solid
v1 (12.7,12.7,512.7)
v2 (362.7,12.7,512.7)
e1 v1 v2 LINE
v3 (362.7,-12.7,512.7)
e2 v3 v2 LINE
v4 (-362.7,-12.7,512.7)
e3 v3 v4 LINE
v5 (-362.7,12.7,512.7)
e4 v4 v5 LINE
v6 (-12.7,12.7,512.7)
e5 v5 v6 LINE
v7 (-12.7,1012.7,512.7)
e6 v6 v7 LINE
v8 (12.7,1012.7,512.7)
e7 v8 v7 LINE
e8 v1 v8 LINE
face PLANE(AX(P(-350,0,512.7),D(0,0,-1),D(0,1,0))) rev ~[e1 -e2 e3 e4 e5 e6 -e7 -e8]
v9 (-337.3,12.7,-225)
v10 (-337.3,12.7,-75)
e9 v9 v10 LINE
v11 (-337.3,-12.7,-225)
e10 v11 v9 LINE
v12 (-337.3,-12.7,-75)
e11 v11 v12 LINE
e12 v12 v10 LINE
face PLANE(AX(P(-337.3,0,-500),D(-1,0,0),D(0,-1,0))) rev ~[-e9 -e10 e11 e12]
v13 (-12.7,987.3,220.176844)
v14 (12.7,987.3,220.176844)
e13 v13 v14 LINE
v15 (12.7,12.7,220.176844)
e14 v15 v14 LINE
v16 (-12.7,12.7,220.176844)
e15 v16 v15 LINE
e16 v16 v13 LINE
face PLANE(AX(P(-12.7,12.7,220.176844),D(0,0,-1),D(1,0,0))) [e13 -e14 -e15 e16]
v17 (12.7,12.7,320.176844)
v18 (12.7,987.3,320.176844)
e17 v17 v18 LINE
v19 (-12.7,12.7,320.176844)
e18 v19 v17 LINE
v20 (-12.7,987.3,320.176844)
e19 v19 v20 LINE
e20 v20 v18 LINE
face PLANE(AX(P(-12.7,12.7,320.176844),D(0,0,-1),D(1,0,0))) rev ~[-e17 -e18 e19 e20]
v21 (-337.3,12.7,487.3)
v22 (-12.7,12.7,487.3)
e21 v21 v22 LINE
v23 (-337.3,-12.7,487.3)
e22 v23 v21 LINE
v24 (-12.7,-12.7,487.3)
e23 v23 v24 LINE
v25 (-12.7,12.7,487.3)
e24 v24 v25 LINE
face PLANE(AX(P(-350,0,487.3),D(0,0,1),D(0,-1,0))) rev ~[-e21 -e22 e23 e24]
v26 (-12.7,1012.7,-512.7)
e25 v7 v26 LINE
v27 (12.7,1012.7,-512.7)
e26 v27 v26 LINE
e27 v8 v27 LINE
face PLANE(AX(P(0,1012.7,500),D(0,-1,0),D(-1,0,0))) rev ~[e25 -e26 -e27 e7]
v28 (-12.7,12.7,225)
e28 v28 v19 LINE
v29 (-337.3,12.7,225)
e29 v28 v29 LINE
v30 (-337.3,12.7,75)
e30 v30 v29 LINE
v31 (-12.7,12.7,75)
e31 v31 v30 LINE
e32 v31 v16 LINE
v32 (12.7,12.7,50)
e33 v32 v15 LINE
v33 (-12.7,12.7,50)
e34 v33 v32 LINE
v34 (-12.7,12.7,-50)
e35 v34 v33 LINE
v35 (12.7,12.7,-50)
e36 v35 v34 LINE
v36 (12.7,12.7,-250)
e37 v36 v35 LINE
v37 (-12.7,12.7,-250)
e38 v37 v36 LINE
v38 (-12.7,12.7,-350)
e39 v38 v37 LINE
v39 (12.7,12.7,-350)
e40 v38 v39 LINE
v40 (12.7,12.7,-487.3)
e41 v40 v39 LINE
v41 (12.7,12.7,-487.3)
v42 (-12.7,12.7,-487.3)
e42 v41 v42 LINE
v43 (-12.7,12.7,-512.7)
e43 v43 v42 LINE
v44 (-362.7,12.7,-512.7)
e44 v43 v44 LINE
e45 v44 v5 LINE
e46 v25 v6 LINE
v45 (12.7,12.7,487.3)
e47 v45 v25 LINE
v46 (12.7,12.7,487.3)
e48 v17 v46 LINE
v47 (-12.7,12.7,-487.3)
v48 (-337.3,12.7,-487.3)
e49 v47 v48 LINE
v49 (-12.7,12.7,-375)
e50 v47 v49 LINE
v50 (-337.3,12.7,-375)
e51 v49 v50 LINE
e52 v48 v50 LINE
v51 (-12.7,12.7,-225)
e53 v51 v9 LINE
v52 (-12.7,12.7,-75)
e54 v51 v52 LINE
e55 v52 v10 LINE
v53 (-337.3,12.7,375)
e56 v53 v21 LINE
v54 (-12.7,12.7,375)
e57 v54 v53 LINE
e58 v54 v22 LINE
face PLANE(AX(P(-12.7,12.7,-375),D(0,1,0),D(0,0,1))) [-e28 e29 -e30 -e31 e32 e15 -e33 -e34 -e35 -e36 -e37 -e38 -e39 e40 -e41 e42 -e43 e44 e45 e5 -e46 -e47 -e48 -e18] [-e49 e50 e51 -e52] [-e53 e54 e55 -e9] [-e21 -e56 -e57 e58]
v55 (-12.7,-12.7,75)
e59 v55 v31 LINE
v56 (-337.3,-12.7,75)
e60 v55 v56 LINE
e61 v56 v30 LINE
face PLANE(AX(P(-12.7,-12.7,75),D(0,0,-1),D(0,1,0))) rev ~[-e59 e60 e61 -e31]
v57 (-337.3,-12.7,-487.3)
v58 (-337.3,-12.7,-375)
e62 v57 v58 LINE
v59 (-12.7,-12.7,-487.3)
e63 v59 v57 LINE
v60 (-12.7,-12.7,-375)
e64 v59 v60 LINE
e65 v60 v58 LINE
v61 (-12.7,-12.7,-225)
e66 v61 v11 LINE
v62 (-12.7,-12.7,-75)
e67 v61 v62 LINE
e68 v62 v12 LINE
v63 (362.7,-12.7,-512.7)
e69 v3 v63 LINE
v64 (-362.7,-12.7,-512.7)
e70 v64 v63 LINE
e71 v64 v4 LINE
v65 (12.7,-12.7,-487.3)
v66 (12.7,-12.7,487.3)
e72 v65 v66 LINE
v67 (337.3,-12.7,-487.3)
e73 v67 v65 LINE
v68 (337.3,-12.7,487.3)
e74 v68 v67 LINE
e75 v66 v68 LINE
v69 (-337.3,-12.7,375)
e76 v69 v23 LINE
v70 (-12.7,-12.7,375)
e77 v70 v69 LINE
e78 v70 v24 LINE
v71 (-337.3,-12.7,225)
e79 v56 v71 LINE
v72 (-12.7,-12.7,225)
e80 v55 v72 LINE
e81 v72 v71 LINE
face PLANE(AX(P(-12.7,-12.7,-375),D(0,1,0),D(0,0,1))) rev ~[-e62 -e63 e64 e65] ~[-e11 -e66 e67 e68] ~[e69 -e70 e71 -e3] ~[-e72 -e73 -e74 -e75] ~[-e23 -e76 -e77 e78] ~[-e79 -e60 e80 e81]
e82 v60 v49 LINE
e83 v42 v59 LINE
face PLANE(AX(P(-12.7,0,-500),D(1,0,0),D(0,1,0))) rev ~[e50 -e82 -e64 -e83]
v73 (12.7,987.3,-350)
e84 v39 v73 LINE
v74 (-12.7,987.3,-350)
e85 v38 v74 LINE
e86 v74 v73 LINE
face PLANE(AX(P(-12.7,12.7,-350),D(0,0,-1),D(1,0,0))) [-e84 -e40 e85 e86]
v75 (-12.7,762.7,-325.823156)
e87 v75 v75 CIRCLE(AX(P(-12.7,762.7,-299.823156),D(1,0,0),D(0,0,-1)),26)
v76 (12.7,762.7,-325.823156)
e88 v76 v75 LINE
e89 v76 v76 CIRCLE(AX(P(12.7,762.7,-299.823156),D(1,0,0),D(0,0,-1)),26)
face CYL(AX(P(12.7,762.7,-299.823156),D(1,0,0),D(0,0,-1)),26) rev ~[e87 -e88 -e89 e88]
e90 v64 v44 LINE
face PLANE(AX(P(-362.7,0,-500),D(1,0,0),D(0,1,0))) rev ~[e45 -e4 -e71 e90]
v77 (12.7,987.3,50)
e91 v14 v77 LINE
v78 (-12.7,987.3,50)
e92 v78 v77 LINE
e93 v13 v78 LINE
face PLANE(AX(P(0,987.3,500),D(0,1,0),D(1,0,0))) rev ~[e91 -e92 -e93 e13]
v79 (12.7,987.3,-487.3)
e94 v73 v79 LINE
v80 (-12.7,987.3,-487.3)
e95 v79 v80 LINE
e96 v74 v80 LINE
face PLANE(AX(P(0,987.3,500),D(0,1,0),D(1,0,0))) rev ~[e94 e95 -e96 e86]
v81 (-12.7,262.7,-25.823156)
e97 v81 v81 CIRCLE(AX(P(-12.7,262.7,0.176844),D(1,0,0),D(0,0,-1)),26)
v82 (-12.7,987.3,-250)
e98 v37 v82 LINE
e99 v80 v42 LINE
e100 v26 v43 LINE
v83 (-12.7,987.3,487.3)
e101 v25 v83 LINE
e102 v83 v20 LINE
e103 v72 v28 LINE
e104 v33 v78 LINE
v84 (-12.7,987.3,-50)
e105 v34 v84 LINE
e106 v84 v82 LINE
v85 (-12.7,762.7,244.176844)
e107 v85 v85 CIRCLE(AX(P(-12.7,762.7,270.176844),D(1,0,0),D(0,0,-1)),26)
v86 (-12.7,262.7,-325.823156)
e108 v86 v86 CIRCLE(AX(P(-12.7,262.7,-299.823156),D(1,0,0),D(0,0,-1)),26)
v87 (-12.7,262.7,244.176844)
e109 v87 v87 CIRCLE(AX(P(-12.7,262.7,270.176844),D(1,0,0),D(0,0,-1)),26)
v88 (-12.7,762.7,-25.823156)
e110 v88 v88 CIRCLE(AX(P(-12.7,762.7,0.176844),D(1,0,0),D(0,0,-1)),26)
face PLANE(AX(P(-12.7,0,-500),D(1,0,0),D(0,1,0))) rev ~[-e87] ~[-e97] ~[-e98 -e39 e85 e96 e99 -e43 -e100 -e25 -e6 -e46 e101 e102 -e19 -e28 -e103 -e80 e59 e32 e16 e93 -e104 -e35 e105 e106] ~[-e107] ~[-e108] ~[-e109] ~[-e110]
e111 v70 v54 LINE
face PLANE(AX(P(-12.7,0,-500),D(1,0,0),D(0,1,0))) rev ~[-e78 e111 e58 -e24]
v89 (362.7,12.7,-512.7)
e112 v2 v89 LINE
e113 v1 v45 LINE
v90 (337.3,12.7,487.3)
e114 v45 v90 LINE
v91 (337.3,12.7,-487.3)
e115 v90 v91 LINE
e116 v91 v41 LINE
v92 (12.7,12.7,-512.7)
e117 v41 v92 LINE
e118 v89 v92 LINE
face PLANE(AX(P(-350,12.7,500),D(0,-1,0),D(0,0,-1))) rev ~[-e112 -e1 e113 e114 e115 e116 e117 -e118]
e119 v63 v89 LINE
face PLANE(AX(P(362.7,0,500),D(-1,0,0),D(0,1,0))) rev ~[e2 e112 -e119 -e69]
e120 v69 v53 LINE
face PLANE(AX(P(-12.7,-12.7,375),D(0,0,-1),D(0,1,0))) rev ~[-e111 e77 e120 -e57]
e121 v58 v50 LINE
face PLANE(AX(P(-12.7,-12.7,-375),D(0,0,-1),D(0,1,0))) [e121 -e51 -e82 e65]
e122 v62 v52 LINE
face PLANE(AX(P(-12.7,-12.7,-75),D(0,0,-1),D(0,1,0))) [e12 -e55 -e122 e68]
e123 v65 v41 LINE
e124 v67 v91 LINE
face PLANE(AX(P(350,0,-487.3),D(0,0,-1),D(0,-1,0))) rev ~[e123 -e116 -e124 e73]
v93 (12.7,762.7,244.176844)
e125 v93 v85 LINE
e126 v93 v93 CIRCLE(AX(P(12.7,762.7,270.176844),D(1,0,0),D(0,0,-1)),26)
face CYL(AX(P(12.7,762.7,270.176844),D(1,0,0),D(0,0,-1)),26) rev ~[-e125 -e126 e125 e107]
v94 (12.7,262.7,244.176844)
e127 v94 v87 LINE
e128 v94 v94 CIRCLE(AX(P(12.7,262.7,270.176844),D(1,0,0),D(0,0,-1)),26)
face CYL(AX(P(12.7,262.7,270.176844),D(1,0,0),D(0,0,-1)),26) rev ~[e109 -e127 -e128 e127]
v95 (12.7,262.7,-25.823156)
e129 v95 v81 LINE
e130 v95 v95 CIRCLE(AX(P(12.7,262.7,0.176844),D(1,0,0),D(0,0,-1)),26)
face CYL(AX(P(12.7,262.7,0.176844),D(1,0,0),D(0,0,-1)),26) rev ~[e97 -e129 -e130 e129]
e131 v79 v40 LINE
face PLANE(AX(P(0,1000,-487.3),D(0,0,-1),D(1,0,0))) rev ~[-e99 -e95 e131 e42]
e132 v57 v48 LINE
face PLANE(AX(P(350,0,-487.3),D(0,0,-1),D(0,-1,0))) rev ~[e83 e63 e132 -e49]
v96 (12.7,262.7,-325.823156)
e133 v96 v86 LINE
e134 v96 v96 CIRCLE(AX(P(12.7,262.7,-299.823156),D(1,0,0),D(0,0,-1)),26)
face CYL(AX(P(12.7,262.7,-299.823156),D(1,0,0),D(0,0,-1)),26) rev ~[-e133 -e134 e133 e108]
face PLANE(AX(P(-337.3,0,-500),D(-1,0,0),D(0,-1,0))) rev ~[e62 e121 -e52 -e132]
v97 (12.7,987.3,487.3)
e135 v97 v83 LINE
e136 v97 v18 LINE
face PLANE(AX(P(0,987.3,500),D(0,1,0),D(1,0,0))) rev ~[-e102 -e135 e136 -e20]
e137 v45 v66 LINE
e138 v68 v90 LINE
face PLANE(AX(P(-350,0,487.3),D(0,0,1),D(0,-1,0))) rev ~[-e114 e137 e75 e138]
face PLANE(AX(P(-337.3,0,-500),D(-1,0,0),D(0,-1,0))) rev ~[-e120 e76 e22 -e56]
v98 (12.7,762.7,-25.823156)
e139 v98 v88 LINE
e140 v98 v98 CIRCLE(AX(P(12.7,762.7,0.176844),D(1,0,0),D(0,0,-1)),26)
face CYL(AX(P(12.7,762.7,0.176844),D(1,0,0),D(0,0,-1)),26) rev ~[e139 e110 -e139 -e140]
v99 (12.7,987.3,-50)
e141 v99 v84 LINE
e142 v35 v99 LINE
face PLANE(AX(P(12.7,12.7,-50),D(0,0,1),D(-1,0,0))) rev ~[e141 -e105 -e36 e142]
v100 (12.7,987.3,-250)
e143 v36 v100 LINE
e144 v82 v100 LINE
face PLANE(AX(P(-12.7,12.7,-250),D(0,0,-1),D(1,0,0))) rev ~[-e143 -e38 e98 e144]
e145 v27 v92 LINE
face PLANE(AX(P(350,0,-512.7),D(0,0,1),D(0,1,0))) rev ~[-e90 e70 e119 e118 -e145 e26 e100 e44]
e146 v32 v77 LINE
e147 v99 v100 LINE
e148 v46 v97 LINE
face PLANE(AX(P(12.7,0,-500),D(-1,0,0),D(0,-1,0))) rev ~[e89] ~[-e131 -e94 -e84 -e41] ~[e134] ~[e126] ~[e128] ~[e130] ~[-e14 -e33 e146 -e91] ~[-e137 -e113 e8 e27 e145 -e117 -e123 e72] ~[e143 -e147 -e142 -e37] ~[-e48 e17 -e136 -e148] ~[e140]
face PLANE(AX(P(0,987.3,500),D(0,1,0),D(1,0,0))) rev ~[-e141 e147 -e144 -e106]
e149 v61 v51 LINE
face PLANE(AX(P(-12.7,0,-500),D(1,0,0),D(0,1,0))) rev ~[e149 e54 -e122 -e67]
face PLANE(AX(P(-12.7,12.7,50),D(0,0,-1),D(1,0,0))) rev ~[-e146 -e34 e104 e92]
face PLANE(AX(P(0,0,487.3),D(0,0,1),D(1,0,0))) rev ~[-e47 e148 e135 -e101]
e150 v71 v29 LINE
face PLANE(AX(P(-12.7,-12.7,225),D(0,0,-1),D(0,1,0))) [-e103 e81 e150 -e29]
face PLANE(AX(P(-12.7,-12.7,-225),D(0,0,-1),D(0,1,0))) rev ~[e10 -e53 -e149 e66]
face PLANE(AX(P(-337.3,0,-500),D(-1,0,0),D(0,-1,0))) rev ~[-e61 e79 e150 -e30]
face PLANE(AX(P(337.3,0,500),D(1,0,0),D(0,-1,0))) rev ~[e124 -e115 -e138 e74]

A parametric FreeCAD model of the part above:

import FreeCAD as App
import Part
import Sketcher


def add_polygon(sketch, points):
    """Adds a closed chain of lines whose ends are joined by coincident constraints."""
    first, n = sketch.GeometryCount, len(points)
    for a, b in zip(points, points[1:] + points[:1]):
        sketch.addGeometry(Part.LineSegment(App.Vector(*a, 0), App.Vector(*b, 0)), False)
    for i in range(n):
        sketch.addConstraint(Sketcher.Constraint("Coincident", first + i, 2, first + (i + 1) % n, 1))

doc = App.newDocument("Part")
params = doc.addObject("Spreadsheet::Sheet", "Params")
for row, (alias, value) in enumerate([
    ("sketch1_width", "25.4 mm"),
    ("sketch2_width", "700 mm"),
    ("sketch2_height", "1000 mm"),
    ("sketch3_width", "25.4 mm"),
    ("sketch4_width", "1000 mm"),
    ("sketch5_height", "100 mm"),
    ("sketch5_width", "25.4 mm"),
    ("pad1_length", "974.6 mm"),
    ("sketch6_height", "150 mm"),
    ("sketch6_width", "25.4 mm"),
    ("pad2_length", "324.6 mm"),
    ("sketch7_diameter", "52 mm"),
    ("pocket1_length", "1115 mm"),
], start=1):
    params.set(f"A{row}", alias)
    params.set(f"B{row}", "=" + value)
    params.setAlias(f"B{row}", alias)

body = doc.addObject("PartDesign::Body", "Body")

# Sketch on YZ plane
sketch1 = body.newObject("Sketcher::SketchObject", "Sketch")
sketch1.AttachmentSupport = (doc.getObject("YZ_Plane"), [""])
sketch1.MapMode = "FlatFace"
add_polygon(sketch1, [(12.7, -487.3), (-12.7, -487.3), (-12.7, -512.7), (12.7, -512.7)])  # lines 0-3
sketch1.addConstraint([
    Sketcher.Constraint("Horizontal", 0),
    Sketcher.Constraint("Vertical", 1),
    Sketcher.Constraint("Horizontal", 2),
    Sketcher.Constraint("Vertical", 3),
    Sketcher.Constraint("Equal", 2, 1),
    Sketcher.Constraint("DistanceX", 0, 2, 0, 1, 25.4),
    Sketcher.Constraint("DistanceX", 0, 2, -1, 1, 12.7),
    Sketcher.Constraint("DistanceY", 0, 2, -1, 1, 487.3),
])
sketch1.setExpression("Constraints[9]", "Params.sketch1_width")

# Sketch on XZ plane
sketch2 = body.newObject("Sketcher::SketchObject", "Sketch001")
sketch2.AttachmentSupport = (doc.getObject("XZ_Plane"), [""])
sketch2.MapMode = "FlatFace"
add_polygon(sketch2, [(-350, 500), (350, 500), (350, -500), (-350, -500)])  # lines 0-3
sketch2.addConstraint([
    Sketcher.Constraint("Horizontal", 0),
    Sketcher.Constraint("Vertical", 1),
    Sketcher.Constraint("Horizontal", 2),
    Sketcher.Constraint("Vertical", 3),
    Sketcher.Constraint("Symmetric", 0, 2, 2, 2, -1, 1),
    Sketcher.Constraint("DistanceX", 0, 1, 0, 2, 700.0),
    Sketcher.Constraint("DistanceY", 1, 2, 1, 1, 1000.0),
])
sketch2.setExpression("Constraints[9]", "Params.sketch2_width")
sketch2.setExpression("Constraints[10]", "Params.sketch2_height")
doc.recompute()

additivepipe = body.newObject("PartDesign::AdditivePipe", "AdditivePipe")
additivepipe.Profile = sketch1
additivepipe.Spine = (sketch2, ["Edge1", "Edge2", "Edge3", "Edge4"])
additivepipe.Transition = "Right corner"

# Sketch on XZ plane
sketch3 = body.newObject("Sketcher::SketchObject", "Sketch002")
sketch3.AttachmentSupport = (doc.getObject("XZ_Plane"), [""])
sketch3.MapMode = "FlatFace"
sketch3.AttachmentOffset = App.Placement(App.Vector(0, 0, -12.7), App.Rotation())
add_polygon(sketch3, [(-12.7, -512.7), (-12.7, -487.3), (12.7, -487.3), (12.7, -512.7)])  # lines 0-3
sketch3.addConstraint([
    Sketcher.Constraint("Vertical", 0),
    Sketcher.Constraint("Horizontal", 1),
    Sketcher.Constraint("Vertical", 2),
    Sketcher.Constraint("Horizontal", 3),
    Sketcher.Constraint("Equal", 3, 0),
    Sketcher.Constraint("DistanceX", 1, 1, 1, 2, 25.4),
    Sketcher.Constraint("DistanceX", 0, 2, -1, 1, 12.7),
    Sketcher.Constraint("DistanceY", 0, 2, -1, 1, 487.3),
])
sketch3.setExpression("Constraints[9]", "Params.sketch3_width")

# Sketch on YZ plane
sketch4 = body.newObject("Sketcher::SketchObject", "Sketch003")
sketch4.AttachmentSupport = (doc.getObject("YZ_Plane"), [""])
sketch4.MapMode = "FlatFace"
add_polygon(sketch4, [(0, 500), (1000, 500), (1000, -500), (0, -500)])  # lines 0-3
sketch4.addConstraint([
    Sketcher.Constraint("Horizontal", 0),
    Sketcher.Constraint("Vertical", 1),
    Sketcher.Constraint("Horizontal", 2),
    Sketcher.Constraint("Vertical", 3),
    Sketcher.Constraint("Symmetric", 2, 2, 3, 2, -1, 1),
    Sketcher.Constraint("Equal", 2, 1),
    Sketcher.Constraint("DistanceX", 0, 1, 0, 2, 1000.0),
])
sketch4.setExpression("Constraints[10]", "Params.sketch4_width")
doc.recompute()

additivepipe2 = body.newObject("PartDesign::AdditivePipe", "AdditivePipe001")
additivepipe2.Profile = sketch3
additivepipe2.Spine = (sketch4, ["Edge1", "Edge2", "Edge3", "Edge4"])
additivepipe2.Transition = "Right corner"

# Sketch on XZ plane
sketch5 = body.newObject("Sketcher::SketchObject", "Sketch004")
sketch5.AttachmentSupport = (doc.getObject("XZ_Plane"), [""])
sketch5.MapMode = "FlatFace"
sketch5.AttachmentOffset = App.Placement(App.Vector(0, 0, -12.7), App.Rotation())
add_polygon(sketch5, [(-12.7, 50), (12.7, 50), (12.7, -50), (-12.7, -50)])  # lines 0-3
add_polygon(sketch5, [(-12.7, 220.176844), (-12.7, 320.176844), (12.7, 320.176844), (12.7, 220.176844)])  # lines 4-7
add_polygon(sketch5, [(-12.7, -350), (-12.7, -250), (12.7, -250), (12.7, -350)])  # lines 8-11
sketch5.addConstraint([
    Sketcher.Constraint("Horizontal", 0),
    Sketcher.Constraint("Vertical", 1),
    Sketcher.Constraint("Horizontal", 2),
    Sketcher.Constraint("Vertical", 3),
    Sketcher.Constraint("Vertical", 4),
    Sketcher.Constraint("Horizontal", 5),
    Sketcher.Constraint("Vertical", 6),
    Sketcher.Constraint("Horizontal", 7),
    Sketcher.Constraint("Vertical", 8),
    Sketcher.Constraint("Horizontal", 9),
    Sketcher.Constraint("Vertical", 10),
    Sketcher.Constraint("Horizontal", 11),
    Sketcher.Constraint("Symmetric", 0, 2, 2, 2, -1, 1),
    Sketcher.Constraint("Vertical", 3, 2, 4, 2),
    Sketcher.Constraint("Vertical", 1, 2, 5, 2),
    Sketcher.Constraint("Vertical", 7, 2, 8, 2),
    Sketcher.Constraint("Vertical", 6, 2, 9, 2),
    Sketcher.Constraint("Equal", 3, 4),
    Sketcher.Constraint("Equal", 6, 8),
    Sketcher.Constraint("DistanceY", 1, 2, 1, 1, 100.0),
    Sketcher.Constraint("DistanceX", 0, 1, 0, 2, 25.4),
    Sketcher.Constraint("DistanceY", 8, 2, -1, 1, 250.0),
    Sketcher.Constraint("DistanceY", -1, 1, 4, 2, 320.176844),
])
sketch5.setExpression("Constraints[31]", "Params.sketch5_height")
sketch5.setExpression("Constraints[32]", "Params.sketch5_width")
pad1 = body.newObject("PartDesign::Pad", "Pad")
pad1.Profile = sketch5
pad1.setExpression("Length", "Params.pad1_length")
pad1.Reversed = True

# Sketch on YZ plane
sketch6 = body.newObject("Sketcher::SketchObject", "Sketch005")
sketch6.AttachmentSupport = (doc.getObject("YZ_Plane"), [""])
sketch6.MapMode = "FlatFace"
sketch6.AttachmentOffset = App.Placement(App.Vector(0, 0, -12.7), App.Rotation())
add_polygon(sketch6, [(12.7, -375), (-12.7, -375), (-12.7, -225), (12.7, -225)])  # lines 0-3
add_polygon(sketch6, [(12.7, -75), (-12.7, -75), (-12.7, 75), (12.7, 75)])  # lines 4-7
add_polygon(sketch6, [(12.7, 225), (-12.7, 225), (-12.7, 375), (12.7, 375)])  # lines 8-11
sketch6.addConstraint([
    Sketcher.Constraint("Horizontal", 0),
    Sketcher.Constraint("Vertical", 1),
    Sketcher.Constraint("Horizontal", 2),
    Sketcher.Constraint("Vertical", 3),
    Sketcher.Constraint("Horizontal", 4),
    Sketcher.Constraint("Vertical", 5),
    Sketcher.Constraint("Horizontal", 6),
    Sketcher.Constraint("Vertical", 7),
    Sketcher.Constraint("Horizontal", 8),
    Sketcher.Constraint("Vertical", 9),
    Sketcher.Constraint("Horizontal", 10),
    Sketcher.Constraint("Vertical", 11),
    Sketcher.Constraint("Symmetric", 4, 2, 6, 2, -1, 1),
    Sketcher.Constraint("Symmetric", 2, 2, 8, 2, -1, 1),
    Sketcher.Constraint("Symmetric", 0, 2, 10, 2, -1, 1),
    Sketcher.Constraint("Vertical", 1, 2, 4, 2),
    Sketcher.Constraint("Vertical", 3, 2, 6, 2),
    Sketcher.Constraint("Equal", 3, 5),
    Sketcher.Constraint("DistanceY", 1, 1, 1, 2, 150.0),
    Sketcher.Constraint("DistanceX", 0, 2, 0, 1, 25.4),
    Sketcher.Constraint("DistanceY", 0, 2, -1, 1, 375.0),
])
sketch6.setExpression("Constraints[30]", "Params.sketch6_height")
sketch6.setExpression("Constraints[31]", "Params.sketch6_width")
pad2 = body.newObject("PartDesign::Pad", "Pad001")
pad2.Profile = sketch6
pad2.setExpression("Length", "Params.pad2_length")
pad2.Reversed = True

# Sketch on YZ plane
sketch7 = body.newObject("Sketcher::SketchObject", "Sketch006")
sketch7.AttachmentSupport = (doc.getObject("YZ_Plane"), [""])
sketch7.MapMode = "FlatFace"
sketch7.AttachmentOffset = App.Placement(App.Vector(0, 0, 12.7), App.Rotation())
sketch7.addGeometry([
    Part.Circle(App.Vector(762.7, 270.176844, 0), App.Vector(0, 0, 1), 26),  # 0
    Part.Circle(App.Vector(762.7, 0.176844, 0), App.Vector(0, 0, 1), 26),  # 1
    Part.Circle(App.Vector(762.7, -299.823156, 0), App.Vector(0, 0, 1), 26),  # 2
    Part.Circle(App.Vector(262.7, 270.176844, 0), App.Vector(0, 0, 1), 26),  # 3
    Part.Circle(App.Vector(262.7, 0.176844, 0), App.Vector(0, 0, 1), 26),  # 4
    Part.Circle(App.Vector(262.7, -299.823156, 0), App.Vector(0, 0, 1), 26),  # 5
], False)
sketch7.addConstraint([
    Sketcher.Constraint("Equal", 0, 1),
    Sketcher.Constraint("Equal", 1, 2),
    Sketcher.Constraint("Equal", 2, 3),
    Sketcher.Constraint("Equal", 3, 4),
    Sketcher.Constraint("Equal", 4, 5),
    Sketcher.Constraint("Horizontal", 0, 3, 3, 3),
    Sketcher.Constraint("Horizontal", 1, 3, 4, 3),
    Sketcher.Constraint("Horizontal", 2, 3, 5, 3),
    Sketcher.Constraint("Vertical", 0, 3, 1, 3),
    Sketcher.Constraint("Vertical", 1, 3, 2, 3),
    Sketcher.Constraint("Vertical", 3, 3, 4, 3),
    Sketcher.Constraint("Vertical", 4, 3, 5, 3),
    Sketcher.Constraint("Diameter", 0, 52.0),
    Sketcher.Constraint("DistanceY", 1, 3, 0, 3, 270.0),
    Sketcher.Constraint("DistanceY", 2, 3, 1, 3, 300.0),
    Sketcher.Constraint("DistanceX", 3, 3, 0, 3, 500.0),
    Sketcher.Constraint("DistanceX", -1, 1, 0, 3, 762.7),
    Sketcher.Constraint("DistanceY", -1, 1, 0, 3, 270.176844),
])
sketch7.setExpression("Constraints[12]", "Params.sketch7_diameter")
pocket1 = body.newObject("PartDesign::Pocket", "Pocket")
pocket1.Profile = sketch7
pocket1.setExpression("Length", "Params.pocket1_length")

doc.recompute()
